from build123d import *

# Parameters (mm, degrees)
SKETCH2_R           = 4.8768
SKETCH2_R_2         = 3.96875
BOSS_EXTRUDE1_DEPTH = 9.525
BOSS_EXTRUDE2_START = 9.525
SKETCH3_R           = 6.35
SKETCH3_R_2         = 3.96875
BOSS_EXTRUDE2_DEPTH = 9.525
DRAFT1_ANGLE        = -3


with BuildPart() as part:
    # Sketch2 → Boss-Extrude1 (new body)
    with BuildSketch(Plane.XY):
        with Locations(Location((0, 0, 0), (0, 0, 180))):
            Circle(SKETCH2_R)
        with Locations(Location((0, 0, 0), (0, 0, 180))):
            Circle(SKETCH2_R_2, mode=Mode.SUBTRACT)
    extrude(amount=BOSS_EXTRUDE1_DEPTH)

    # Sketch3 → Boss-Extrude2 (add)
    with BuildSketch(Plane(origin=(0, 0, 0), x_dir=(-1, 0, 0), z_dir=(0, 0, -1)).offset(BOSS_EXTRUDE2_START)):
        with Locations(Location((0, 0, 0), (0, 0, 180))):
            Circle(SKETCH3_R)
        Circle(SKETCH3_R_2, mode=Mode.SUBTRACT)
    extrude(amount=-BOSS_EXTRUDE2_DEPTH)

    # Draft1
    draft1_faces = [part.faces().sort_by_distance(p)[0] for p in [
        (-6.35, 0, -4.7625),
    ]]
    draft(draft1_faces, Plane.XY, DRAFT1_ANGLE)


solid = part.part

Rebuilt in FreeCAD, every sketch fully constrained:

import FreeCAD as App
import Part
import Sketcher
Q = App.Units.Quantity


def faces_at(feature, points):
    """Names of the faces that lie closest to the given points."""
    faces = feature.Shape.Faces
    near = lambda p: min(range(len(faces)), key=lambda i: faces[i].distToShape(Part.Vertex(*p))[0])
    return sorted({f"Face{near(p) + 1}" for p in points})

doc = App.newDocument("Part")
body = doc.addObject("PartDesign::Body", "Body")

# Sketch on XY plane
sketch1 = body.newObject("Sketcher::SketchObject", "Sketch")
sketch1.AttachmentSupport = (doc.getObject("XY_Plane"), [""])
sketch1.MapMode = "FlatFace"
sketch1.addGeometry(Part.Circle(App.Vector(0, 0, 0), App.Vector(0, 0, 1), 4.9), False)
sketch1.addGeometry(Part.Circle(App.Vector(0, 0, 0), App.Vector(0, 0, 1), 4), False)
sketch1.addConstraint(Sketcher.Constraint("Coincident", 0, 3, -1, 1))
sketch1.addConstraint(Sketcher.Constraint("Coincident", 1, 3, -1, 1))
sketch1.addConstraint(Sketcher.Constraint("Diameter", 0, Q("0.384 in")))
sketch1.addConstraint(Sketcher.Constraint("Diameter", 1, Q("0.3125 in")))
pad1 = body.newObject("PartDesign::Pad", "Pad")
pad1.Profile = sketch1
pad1.Length = Q("0.375 in")

# Sketch on XY plane
sketch2 = body.newObject("Sketcher::SketchObject", "Sketch001")
sketch2.AttachmentSupport = (doc.getObject("XY_Plane"), [""])
sketch2.MapMode = "FlatFace"
sketch2.AttachmentOffset = App.Placement(App.Vector(0, 0, -0.375 * 25.4), App.Rotation())
sketch2.addGeometry(Part.Circle(App.Vector(0, 0, 0), App.Vector(0, 0, 1), 6.3), False)
sketch2.addGeometry(Part.Circle(App.Vector(0, 0, 0), App.Vector(0, 0, 1), 4), False)
sketch2.addConstraint(Sketcher.Constraint("Coincident", 0, 3, -1, 1))
sketch2.addConstraint(Sketcher.Constraint("Coincident", 1, 3, -1, 1))
sketch2.addConstraint(Sketcher.Constraint("Diameter", 0, Q("0.5 in")))
sketch2.addConstraint(Sketcher.Constraint("Diameter", 1, Q("0.3125 in")))
pad2 = body.newObject("PartDesign::Pad", "Pad001")
pad2.Profile = sketch2
pad2.Length = Q("0.375 in")
doc.recompute()

draft = body.newObject("PartDesign::Draft", "Draft")
draft.Base = (pad2, faces_at(pad2, [(-6.35, 0, -4.763)]))
draft.NeutralPlane = (doc.getObject("XY_Plane"), [""])
draft.Angle = 3
draft.Reversed = True

doc.recompute()
